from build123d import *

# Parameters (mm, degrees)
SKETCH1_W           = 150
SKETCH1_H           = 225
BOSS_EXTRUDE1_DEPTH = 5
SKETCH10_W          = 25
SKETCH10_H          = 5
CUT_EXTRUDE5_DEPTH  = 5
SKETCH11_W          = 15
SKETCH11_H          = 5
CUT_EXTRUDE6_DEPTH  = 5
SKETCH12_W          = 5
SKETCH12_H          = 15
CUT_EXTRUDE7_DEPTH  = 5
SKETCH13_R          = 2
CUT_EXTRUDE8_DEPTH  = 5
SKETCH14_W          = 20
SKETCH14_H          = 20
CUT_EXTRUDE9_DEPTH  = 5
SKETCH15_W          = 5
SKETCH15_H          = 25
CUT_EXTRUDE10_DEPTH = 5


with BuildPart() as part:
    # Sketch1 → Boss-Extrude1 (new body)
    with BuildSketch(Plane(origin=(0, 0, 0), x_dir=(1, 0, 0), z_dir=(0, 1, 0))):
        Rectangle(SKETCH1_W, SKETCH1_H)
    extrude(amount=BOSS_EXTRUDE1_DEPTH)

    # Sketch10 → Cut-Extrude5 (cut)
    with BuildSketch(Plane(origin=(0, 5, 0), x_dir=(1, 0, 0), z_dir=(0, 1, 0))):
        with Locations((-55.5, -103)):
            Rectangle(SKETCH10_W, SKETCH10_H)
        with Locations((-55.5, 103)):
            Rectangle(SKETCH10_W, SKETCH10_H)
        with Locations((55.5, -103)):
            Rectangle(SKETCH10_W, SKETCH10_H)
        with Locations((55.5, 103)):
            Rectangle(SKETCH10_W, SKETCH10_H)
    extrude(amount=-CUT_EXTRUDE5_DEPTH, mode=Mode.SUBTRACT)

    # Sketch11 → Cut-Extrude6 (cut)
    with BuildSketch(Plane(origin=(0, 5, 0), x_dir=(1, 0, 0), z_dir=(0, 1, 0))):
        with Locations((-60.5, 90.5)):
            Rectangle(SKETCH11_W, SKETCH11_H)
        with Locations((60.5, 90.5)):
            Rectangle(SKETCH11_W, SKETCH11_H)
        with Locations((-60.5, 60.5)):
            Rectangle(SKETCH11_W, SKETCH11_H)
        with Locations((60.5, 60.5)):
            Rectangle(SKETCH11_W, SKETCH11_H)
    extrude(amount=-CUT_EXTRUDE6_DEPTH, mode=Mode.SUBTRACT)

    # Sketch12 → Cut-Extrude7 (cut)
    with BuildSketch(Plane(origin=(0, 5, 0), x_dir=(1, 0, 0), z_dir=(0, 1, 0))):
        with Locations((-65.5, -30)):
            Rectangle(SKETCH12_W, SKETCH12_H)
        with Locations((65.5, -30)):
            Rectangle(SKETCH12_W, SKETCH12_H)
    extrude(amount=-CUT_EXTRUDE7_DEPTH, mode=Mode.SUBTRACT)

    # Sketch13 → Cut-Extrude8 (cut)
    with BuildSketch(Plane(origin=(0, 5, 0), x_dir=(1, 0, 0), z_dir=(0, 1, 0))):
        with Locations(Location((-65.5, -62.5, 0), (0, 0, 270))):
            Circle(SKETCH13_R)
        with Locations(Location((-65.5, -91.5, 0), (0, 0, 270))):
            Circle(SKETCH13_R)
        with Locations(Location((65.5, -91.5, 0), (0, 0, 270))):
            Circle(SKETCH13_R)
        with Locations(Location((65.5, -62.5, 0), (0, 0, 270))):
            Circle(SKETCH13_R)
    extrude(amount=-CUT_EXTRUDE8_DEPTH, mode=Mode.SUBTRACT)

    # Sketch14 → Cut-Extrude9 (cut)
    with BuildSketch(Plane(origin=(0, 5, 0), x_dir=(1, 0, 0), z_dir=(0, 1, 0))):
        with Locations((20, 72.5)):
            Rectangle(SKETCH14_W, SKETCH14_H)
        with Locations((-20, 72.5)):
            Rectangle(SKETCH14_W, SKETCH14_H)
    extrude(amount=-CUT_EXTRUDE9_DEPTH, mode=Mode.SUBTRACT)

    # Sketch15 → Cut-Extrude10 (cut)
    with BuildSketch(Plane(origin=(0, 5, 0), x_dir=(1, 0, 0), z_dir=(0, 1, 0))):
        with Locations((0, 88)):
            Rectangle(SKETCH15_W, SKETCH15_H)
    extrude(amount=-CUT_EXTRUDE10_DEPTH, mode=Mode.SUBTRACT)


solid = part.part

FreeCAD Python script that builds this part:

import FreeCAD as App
import Part
import Sketcher
from FreeCAD import Vector
Q = App.Units.Quantity


def add_polygon(sketch, points):
    """Adds a closed chain of lines whose ends are joined by coincident constraints."""
    first, n = sketch.GeometryCount, len(points)
    for a, b in zip(points, points[1:] + points[:1]):
        sketch.addGeometry(Part.LineSegment(App.Vector(*a, 0), App.Vector(*b, 0)), False)
    for i in range(n):
        sketch.addConstraint(Sketcher.Constraint("Coincident", first + i, 2, first + (i + 1) % n, 1))

doc = App.newDocument("Part")
body = doc.addObject("PartDesign::Body", "Body")

# Sketch on XZ plane
sketch1 = doc.addObject("Sketcher::SketchObject", "Sketch")
body.addObject(sketch1)
sketch1.AttachmentSupport = (doc.XZ_Plane, [""])
sketch1.MapMode = "FlatFace"
add_polygon(sketch1, [(-75, -112), (-75, 112), (75, 112), (75, -112)])  # lines 0-3
sketch1.addConstraint([
    Sketcher.Constraint("Vertical", 0),
    Sketcher.Constraint("Horizontal", 1),
    Sketcher.Constraint("Vertical", 2),
    Sketcher.Constraint("Horizontal", 3),
    Sketcher.Constraint("Symmetric", 0, 2, 2, 2, -1, 1),
    Sketcher.Constraint("DistanceX", 1, 1, 1, 2, Q("150 mm")),
    Sketcher.Constraint("DistanceY", 0, 1, 0, 2, Q("225 mm")),
])
pad1 = doc.addObject("PartDesign::Pad", "Pad")
body.addObject(pad1)
pad1.Profile = sketch1
pad1.Length = 5
pad1.Reversed = True

# Sketch on XZ plane
sketch2 = doc.addObject("Sketcher::SketchObject", "Sketch001")
body.addObject(sketch2)
sketch2.AttachmentSupport = (doc.XZ_Plane, [""])
sketch2.MapMode = "FlatFace"
sketch2.AttachmentOffset = App.Placement(Vector(0, 0, -5), App.Rotation())
add_polygon(sketch2, [(-68, 100), (-68, 106), (-43, 106), (-43, 100)])  # lines 0-3
add_polygon(sketch2, [(-68, -106), (-68, -100), (-43, -100), (-43, -106)])  # lines 4-7
add_polygon(sketch2, [(43, 100), (43, 106), (68, 106), (68, 100)])  # lines 8-11
add_polygon(sketch2, [(43, -106), (43, -100), (68, -100), (68, -106)])  # lines 12-15
sketch2.addConstraint([
    Sketcher.Constraint("Vertical", 0),
    Sketcher.Constraint("Horizontal", 1),
    Sketcher.Constraint("Vertical", 2),
    Sketcher.Constraint("Horizontal", 3),
    Sketcher.Constraint("Vertical", 4),
    Sketcher.Constraint("Horizontal", 5),
    Sketcher.Constraint("Vertical", 6),
    Sketcher.Constraint("Horizontal", 7),
    Sketcher.Constraint("Vertical", 8),
    Sketcher.Constraint("Horizontal", 9),
    Sketcher.Constraint("Vertical", 10),
    Sketcher.Constraint("Horizontal", 11),
    Sketcher.Constraint("Vertical", 12),
    Sketcher.Constraint("Horizontal", 13),
    Sketcher.Constraint("Vertical", 14),
    Sketcher.Constraint("Horizontal", 15),
    Sketcher.Constraint("Symmetric", 6, 2, 8, 2, -1, 1),
    Sketcher.Constraint("Symmetric", 4, 2, 10, 2, -1, 1),
    Sketcher.Constraint("Symmetric", 2, 2, 12, 2, -1, 1),
    Sketcher.Constraint("Symmetric", 0, 2, 14, 2, -1, 1),
    Sketcher.Constraint("Symmetric", 1, 2, 8, 2, -2),
    Sketcher.Constraint("Symmetric", 3, 2, 10, 2, -2),
    Sketcher.Constraint("DistanceX", 1, 1, 1, 2, Q("25 mm")),
    Sketcher.Constraint("DistanceY", 0, 1, 0, 2, Q("5 mm")),
    Sketcher.Constraint("DistanceX", 0, 2, -1, 1, Q("68 mm")),
    Sketcher.Constraint("DistanceY", 4, 2, 3, 2, Q("201 mm")),
])
pocket1 = doc.addObject("PartDesign::Pocket", "Pocket")
body.addObject(pocket1)
pocket1.Profile = sketch2
pocket1.Length = 5
pocket1.Reversed = True

# Sketch on XZ plane
sketch3 = doc.addObject("Sketcher::SketchObject", "Sketch002")
body.addObject(sketch3)
sketch3.AttachmentSupport = (doc.XZ_Plane, [""])
sketch3.MapMode = "FlatFace"
sketch3.AttachmentOffset = App.Placement(Vector(0, 0, -5), App.Rotation())
add_polygon(sketch3, [(-68, -93), (-68, -88), (-53, -88), (-53, -93)])  # lines 0-3
add_polygon(sketch3, [(53, -93), (53, -88), (68, -88), (68, -93)])  # lines 4-7
add_polygon(sketch3, [(-68, -63), (-68, -58), (-53, -58), (-53, -63)])  # lines 8-11
add_polygon(sketch3, [(53, -63), (53, -58), (68, -58), (68, -63)])  # lines 12-15
sketch3.addConstraint([
    Sketcher.Constraint("Vertical", 0),
    Sketcher.Constraint("Horizontal", 1),
    Sketcher.Constraint("Vertical", 2),
    Sketcher.Constraint("Horizontal", 3),
    Sketcher.Constraint("Vertical", 4),
    Sketcher.Constraint("Horizontal", 5),
    Sketcher.Constraint("Vertical", 6),
    Sketcher.Constraint("Horizontal", 7),
    Sketcher.Constraint("Vertical", 8),
    Sketcher.Constraint("Horizontal", 9),
    Sketcher.Constraint("Vertical", 10),
    Sketcher.Constraint("Horizontal", 11),
    Sketcher.Constraint("Vertical", 12),
    Sketcher.Constraint("Horizontal", 13),
    Sketcher.Constraint("Vertical", 14),
    Sketcher.Constraint("Horizontal", 15),
    Sketcher.Constraint("Symmetric", 1, 2, 4, 2, -2),
    Sketcher.Constraint("Symmetric", 3, 2, 6, 2, -2),
    Sketcher.Constraint("Symmetric", 9, 2, 12, 2, -2),
    Sketcher.Constraint("Symmetric", 11, 2, 14, 2, -2),
    Sketcher.Constraint("Vertical", 3, 2, 8, 2),
    Sketcher.Constraint("Vertical", 2, 2, 9, 2),
    Sketcher.Constraint("Equal", 6, 8),
    Sketcher.Constraint("DistanceX", 1, 1, 1, 2, Q("15 mm")),
    Sketcher.Constraint("DistanceY", 0, 1, 0, 2, Q("5 mm")),
    Sketcher.Constraint("DistanceX", 0, 2, -1, 1, Q("68 mm")),
    Sketcher.Constraint("DistanceY", 0, 2, -1, 1, Q("88 mm")),
    Sketcher.Constraint("DistanceY", 8, 2, -1, 1, Q("58 mm")),
])
pocket2 = doc.addObject("PartDesign::Pocket", "Pocket001")
body.addObject(pocket2)
pocket2.Profile = sketch3
pocket2.Length = 5
pocket2.Reversed = True

# Sketch on XZ plane
sketch4 = doc.addObject("Sketcher::SketchObject", "Sketch003")
body.addObject(sketch4)
sketch4.AttachmentSupport = (doc.XZ_Plane, [""])
sketch4.MapMode = "FlatFace"
sketch4.AttachmentOffset = App.Placement(Vector(0, 0, -5), App.Rotation())
add_polygon(sketch4, [(-68, 22), (-68, 38), (-63, 38), (-63, 22)])  # lines 0-3
add_polygon(sketch4, [(63, 22), (63, 38), (68, 38), (68, 22)])  # lines 4-7
sketch4.addConstraint([
    Sketcher.Constraint("Vertical", 0),
    Sketcher.Constraint("Horizontal", 1),
    Sketcher.Constraint("Vertical", 2),
    Sketcher.Constraint("Horizontal", 3),
    Sketcher.Constraint("Vertical", 4),
    Sketcher.Constraint("Horizontal", 5),
    Sketcher.Constraint("Vertical", 6),
    Sketcher.Constraint("Horizontal", 7),
    Sketcher.Constraint("Symmetric", 1, 2, 4, 2, -2),
    Sketcher.Constraint("Symmetric", 3, 2, 6, 2, -2),
    Sketcher.Constraint("DistanceX", 1, 1, 1, 2, Q("5 mm")),
    Sketcher.Constraint("DistanceY", 0, 1, 0, 2, Q("15 mm")),
    Sketcher.Constraint("DistanceX", 0, 2, -1, 1, Q("68 mm")),
    Sketcher.Constraint("DistanceY", -1, 1, 0, 2, Q("37.5 mm")),
])
pocket3 = doc.addObject("PartDesign::Pocket", "Pocket002")
body.addObject(pocket3)
pocket3.Profile = sketch4
pocket3.Length = 5
pocket3.Reversed = True

# Sketch on XZ plane
sketch5 = doc.addObject("Sketcher::SketchObject", "Sketch004")
body.addObject(sketch5)
sketch5.AttachmentSupport = (doc.XZ_Plane, [""])
sketch5.MapMode = "FlatFace"
sketch5.AttachmentOffset = App.Placement(Vector(0, 0, -5), App.Rotation())
sketch5.addGeometry([
    Part.Circle(Vector(-65.5, 62.5, 0), Vector(0, 0, 1), 2),
    Part.Circle(Vector(-65.5, 91.5, 0), Vector(0, 0, 1), 2),
    Part.Circle(Vector(65.5, 91.5, 0), Vector(0, 0, 1), 2),
    Part.Circle(Vector(65.5, 62.5, 0), Vector(0, 0, 1), 2),
], False)
sketch5.addConstraint([
    Sketcher.Constraint("Equal", 0, 1),
    Sketcher.Constraint("Equal", 1, 2),
    Sketcher.Constraint("Equal", 2, 3),
    Sketcher.Constraint("Symmetric", 1, 3, 2, 3, -2),
    Sketcher.Constraint("Symmetric", 0, 3, 3, 3, -2),
    Sketcher.Constraint("Vertical", 0, 3, 1, 3),
    Sketcher.Constraint("Diameter", 0, Q("4 mm")),
    Sketcher.Constraint("DistanceY", 0, 3, 1, 3, Q("29 mm")),
    Sketcher.Constraint("DistanceX", 1, 3, 2, 3, Q("131 mm")),
    Sketcher.Constraint("DistanceY", -1, 1, 0, 3, Q("62.5 mm")),
])
pocket4 = doc.addObject("PartDesign::Pocket", "Pocket003")
body.addObject(pocket4)
pocket4.Profile = sketch5
pocket4.Length = 5
pocket4.Reversed = True

# Sketch on XZ plane
sketch6 = doc.addObject("Sketcher::SketchObject", "Sketch005")
body.addObject(sketch6)
sketch6.AttachmentSupport = (doc.XZ_Plane, [""])
sketch6.MapMode = "FlatFace"
sketch6.AttachmentOffset = App.Placement(Vector(0, 0, -5), App.Rotation())
add_polygon(sketch6, [(10, -82), (10, -62), (30, -62), (30, -82)])  # lines 0-3
add_polygon(sketch6, [(-30, -82), (-30, -62), (-10, -62), (-10, -82)])  # lines 4-7
sketch6.addConstraint([
    Sketcher.Constraint("Vertical", 0),
    Sketcher.Constraint("Horizontal", 1),
    Sketcher.Constraint("Vertical", 2),
    Sketcher.Constraint("Horizontal", 3),
    Sketcher.Constraint("Vertical", 4),
    Sketcher.Constraint("Horizontal", 5),
    Sketcher.Constraint("Vertical", 6),
    Sketcher.Constraint("Horizontal", 7),
    Sketcher.Constraint("Symmetric", 1, 2, 4, 2, -2),
    Sketcher.Constraint("Symmetric", 3, 2, 6, 2, -2),
    Sketcher.Constraint("Equal", 7, 0),
    Sketcher.Constraint("DistanceX", 1, 1, 1, 2, Q("20 mm")),
    Sketcher.Constraint("DistanceX", -1, 1, 0, 2, Q("10 mm")),
    Sketcher.Constraint("DistanceY", 0, 2, -1, 1, Q("62.5 mm")),
])
pocket5 = doc.addObject("PartDesign::Pocket", "Pocket004")
body.addObject(pocket5)
pocket5.Profile = sketch6
pocket5.Length = 5
pocket5.Reversed = True

# Sketch on XZ plane
sketch7 = doc.addObject("Sketcher::SketchObject", "Sketch006")
body.addObject(sketch7)
sketch7.AttachmentSupport = (doc.XZ_Plane, [""])
sketch7.MapMode = "FlatFace"
sketch7.AttachmentOffset = App.Placement(Vector(0, 0, -5), App.Rotation())
add_polygon(sketch7, [(-2, -100), (-2, -76), (2, -76), (2, -100)])  # lines 0-3
sketch7.addConstraint([
    Sketcher.Constraint("Vertical", 0),
    Sketcher.Constraint("Horizontal", 1),
    Sketcher.Constraint("Vertical", 2),
    Sketcher.Constraint("Horizontal", 3),
    Sketcher.Constraint("DistanceX", 1, 1, 1, 2, Q("5 mm")),
    Sketcher.Constraint("DistanceY", 0, 1, 0, 2, Q("25 mm")),
    Sketcher.Constraint("DistanceX", 0, 2, -1, 1, Q("2.5 mm")),
    Sketcher.Constraint("DistanceY", 0, 2, -1, 1, Q("75.5 mm")),
])
pocket6 = doc.addObject("PartDesign::Pocket", "Pocket005")
body.addObject(pocket6)
pocket6.Profile = sketch7
pocket6.Length = 5
pocket6.Reversed = True

doc.recompute()
